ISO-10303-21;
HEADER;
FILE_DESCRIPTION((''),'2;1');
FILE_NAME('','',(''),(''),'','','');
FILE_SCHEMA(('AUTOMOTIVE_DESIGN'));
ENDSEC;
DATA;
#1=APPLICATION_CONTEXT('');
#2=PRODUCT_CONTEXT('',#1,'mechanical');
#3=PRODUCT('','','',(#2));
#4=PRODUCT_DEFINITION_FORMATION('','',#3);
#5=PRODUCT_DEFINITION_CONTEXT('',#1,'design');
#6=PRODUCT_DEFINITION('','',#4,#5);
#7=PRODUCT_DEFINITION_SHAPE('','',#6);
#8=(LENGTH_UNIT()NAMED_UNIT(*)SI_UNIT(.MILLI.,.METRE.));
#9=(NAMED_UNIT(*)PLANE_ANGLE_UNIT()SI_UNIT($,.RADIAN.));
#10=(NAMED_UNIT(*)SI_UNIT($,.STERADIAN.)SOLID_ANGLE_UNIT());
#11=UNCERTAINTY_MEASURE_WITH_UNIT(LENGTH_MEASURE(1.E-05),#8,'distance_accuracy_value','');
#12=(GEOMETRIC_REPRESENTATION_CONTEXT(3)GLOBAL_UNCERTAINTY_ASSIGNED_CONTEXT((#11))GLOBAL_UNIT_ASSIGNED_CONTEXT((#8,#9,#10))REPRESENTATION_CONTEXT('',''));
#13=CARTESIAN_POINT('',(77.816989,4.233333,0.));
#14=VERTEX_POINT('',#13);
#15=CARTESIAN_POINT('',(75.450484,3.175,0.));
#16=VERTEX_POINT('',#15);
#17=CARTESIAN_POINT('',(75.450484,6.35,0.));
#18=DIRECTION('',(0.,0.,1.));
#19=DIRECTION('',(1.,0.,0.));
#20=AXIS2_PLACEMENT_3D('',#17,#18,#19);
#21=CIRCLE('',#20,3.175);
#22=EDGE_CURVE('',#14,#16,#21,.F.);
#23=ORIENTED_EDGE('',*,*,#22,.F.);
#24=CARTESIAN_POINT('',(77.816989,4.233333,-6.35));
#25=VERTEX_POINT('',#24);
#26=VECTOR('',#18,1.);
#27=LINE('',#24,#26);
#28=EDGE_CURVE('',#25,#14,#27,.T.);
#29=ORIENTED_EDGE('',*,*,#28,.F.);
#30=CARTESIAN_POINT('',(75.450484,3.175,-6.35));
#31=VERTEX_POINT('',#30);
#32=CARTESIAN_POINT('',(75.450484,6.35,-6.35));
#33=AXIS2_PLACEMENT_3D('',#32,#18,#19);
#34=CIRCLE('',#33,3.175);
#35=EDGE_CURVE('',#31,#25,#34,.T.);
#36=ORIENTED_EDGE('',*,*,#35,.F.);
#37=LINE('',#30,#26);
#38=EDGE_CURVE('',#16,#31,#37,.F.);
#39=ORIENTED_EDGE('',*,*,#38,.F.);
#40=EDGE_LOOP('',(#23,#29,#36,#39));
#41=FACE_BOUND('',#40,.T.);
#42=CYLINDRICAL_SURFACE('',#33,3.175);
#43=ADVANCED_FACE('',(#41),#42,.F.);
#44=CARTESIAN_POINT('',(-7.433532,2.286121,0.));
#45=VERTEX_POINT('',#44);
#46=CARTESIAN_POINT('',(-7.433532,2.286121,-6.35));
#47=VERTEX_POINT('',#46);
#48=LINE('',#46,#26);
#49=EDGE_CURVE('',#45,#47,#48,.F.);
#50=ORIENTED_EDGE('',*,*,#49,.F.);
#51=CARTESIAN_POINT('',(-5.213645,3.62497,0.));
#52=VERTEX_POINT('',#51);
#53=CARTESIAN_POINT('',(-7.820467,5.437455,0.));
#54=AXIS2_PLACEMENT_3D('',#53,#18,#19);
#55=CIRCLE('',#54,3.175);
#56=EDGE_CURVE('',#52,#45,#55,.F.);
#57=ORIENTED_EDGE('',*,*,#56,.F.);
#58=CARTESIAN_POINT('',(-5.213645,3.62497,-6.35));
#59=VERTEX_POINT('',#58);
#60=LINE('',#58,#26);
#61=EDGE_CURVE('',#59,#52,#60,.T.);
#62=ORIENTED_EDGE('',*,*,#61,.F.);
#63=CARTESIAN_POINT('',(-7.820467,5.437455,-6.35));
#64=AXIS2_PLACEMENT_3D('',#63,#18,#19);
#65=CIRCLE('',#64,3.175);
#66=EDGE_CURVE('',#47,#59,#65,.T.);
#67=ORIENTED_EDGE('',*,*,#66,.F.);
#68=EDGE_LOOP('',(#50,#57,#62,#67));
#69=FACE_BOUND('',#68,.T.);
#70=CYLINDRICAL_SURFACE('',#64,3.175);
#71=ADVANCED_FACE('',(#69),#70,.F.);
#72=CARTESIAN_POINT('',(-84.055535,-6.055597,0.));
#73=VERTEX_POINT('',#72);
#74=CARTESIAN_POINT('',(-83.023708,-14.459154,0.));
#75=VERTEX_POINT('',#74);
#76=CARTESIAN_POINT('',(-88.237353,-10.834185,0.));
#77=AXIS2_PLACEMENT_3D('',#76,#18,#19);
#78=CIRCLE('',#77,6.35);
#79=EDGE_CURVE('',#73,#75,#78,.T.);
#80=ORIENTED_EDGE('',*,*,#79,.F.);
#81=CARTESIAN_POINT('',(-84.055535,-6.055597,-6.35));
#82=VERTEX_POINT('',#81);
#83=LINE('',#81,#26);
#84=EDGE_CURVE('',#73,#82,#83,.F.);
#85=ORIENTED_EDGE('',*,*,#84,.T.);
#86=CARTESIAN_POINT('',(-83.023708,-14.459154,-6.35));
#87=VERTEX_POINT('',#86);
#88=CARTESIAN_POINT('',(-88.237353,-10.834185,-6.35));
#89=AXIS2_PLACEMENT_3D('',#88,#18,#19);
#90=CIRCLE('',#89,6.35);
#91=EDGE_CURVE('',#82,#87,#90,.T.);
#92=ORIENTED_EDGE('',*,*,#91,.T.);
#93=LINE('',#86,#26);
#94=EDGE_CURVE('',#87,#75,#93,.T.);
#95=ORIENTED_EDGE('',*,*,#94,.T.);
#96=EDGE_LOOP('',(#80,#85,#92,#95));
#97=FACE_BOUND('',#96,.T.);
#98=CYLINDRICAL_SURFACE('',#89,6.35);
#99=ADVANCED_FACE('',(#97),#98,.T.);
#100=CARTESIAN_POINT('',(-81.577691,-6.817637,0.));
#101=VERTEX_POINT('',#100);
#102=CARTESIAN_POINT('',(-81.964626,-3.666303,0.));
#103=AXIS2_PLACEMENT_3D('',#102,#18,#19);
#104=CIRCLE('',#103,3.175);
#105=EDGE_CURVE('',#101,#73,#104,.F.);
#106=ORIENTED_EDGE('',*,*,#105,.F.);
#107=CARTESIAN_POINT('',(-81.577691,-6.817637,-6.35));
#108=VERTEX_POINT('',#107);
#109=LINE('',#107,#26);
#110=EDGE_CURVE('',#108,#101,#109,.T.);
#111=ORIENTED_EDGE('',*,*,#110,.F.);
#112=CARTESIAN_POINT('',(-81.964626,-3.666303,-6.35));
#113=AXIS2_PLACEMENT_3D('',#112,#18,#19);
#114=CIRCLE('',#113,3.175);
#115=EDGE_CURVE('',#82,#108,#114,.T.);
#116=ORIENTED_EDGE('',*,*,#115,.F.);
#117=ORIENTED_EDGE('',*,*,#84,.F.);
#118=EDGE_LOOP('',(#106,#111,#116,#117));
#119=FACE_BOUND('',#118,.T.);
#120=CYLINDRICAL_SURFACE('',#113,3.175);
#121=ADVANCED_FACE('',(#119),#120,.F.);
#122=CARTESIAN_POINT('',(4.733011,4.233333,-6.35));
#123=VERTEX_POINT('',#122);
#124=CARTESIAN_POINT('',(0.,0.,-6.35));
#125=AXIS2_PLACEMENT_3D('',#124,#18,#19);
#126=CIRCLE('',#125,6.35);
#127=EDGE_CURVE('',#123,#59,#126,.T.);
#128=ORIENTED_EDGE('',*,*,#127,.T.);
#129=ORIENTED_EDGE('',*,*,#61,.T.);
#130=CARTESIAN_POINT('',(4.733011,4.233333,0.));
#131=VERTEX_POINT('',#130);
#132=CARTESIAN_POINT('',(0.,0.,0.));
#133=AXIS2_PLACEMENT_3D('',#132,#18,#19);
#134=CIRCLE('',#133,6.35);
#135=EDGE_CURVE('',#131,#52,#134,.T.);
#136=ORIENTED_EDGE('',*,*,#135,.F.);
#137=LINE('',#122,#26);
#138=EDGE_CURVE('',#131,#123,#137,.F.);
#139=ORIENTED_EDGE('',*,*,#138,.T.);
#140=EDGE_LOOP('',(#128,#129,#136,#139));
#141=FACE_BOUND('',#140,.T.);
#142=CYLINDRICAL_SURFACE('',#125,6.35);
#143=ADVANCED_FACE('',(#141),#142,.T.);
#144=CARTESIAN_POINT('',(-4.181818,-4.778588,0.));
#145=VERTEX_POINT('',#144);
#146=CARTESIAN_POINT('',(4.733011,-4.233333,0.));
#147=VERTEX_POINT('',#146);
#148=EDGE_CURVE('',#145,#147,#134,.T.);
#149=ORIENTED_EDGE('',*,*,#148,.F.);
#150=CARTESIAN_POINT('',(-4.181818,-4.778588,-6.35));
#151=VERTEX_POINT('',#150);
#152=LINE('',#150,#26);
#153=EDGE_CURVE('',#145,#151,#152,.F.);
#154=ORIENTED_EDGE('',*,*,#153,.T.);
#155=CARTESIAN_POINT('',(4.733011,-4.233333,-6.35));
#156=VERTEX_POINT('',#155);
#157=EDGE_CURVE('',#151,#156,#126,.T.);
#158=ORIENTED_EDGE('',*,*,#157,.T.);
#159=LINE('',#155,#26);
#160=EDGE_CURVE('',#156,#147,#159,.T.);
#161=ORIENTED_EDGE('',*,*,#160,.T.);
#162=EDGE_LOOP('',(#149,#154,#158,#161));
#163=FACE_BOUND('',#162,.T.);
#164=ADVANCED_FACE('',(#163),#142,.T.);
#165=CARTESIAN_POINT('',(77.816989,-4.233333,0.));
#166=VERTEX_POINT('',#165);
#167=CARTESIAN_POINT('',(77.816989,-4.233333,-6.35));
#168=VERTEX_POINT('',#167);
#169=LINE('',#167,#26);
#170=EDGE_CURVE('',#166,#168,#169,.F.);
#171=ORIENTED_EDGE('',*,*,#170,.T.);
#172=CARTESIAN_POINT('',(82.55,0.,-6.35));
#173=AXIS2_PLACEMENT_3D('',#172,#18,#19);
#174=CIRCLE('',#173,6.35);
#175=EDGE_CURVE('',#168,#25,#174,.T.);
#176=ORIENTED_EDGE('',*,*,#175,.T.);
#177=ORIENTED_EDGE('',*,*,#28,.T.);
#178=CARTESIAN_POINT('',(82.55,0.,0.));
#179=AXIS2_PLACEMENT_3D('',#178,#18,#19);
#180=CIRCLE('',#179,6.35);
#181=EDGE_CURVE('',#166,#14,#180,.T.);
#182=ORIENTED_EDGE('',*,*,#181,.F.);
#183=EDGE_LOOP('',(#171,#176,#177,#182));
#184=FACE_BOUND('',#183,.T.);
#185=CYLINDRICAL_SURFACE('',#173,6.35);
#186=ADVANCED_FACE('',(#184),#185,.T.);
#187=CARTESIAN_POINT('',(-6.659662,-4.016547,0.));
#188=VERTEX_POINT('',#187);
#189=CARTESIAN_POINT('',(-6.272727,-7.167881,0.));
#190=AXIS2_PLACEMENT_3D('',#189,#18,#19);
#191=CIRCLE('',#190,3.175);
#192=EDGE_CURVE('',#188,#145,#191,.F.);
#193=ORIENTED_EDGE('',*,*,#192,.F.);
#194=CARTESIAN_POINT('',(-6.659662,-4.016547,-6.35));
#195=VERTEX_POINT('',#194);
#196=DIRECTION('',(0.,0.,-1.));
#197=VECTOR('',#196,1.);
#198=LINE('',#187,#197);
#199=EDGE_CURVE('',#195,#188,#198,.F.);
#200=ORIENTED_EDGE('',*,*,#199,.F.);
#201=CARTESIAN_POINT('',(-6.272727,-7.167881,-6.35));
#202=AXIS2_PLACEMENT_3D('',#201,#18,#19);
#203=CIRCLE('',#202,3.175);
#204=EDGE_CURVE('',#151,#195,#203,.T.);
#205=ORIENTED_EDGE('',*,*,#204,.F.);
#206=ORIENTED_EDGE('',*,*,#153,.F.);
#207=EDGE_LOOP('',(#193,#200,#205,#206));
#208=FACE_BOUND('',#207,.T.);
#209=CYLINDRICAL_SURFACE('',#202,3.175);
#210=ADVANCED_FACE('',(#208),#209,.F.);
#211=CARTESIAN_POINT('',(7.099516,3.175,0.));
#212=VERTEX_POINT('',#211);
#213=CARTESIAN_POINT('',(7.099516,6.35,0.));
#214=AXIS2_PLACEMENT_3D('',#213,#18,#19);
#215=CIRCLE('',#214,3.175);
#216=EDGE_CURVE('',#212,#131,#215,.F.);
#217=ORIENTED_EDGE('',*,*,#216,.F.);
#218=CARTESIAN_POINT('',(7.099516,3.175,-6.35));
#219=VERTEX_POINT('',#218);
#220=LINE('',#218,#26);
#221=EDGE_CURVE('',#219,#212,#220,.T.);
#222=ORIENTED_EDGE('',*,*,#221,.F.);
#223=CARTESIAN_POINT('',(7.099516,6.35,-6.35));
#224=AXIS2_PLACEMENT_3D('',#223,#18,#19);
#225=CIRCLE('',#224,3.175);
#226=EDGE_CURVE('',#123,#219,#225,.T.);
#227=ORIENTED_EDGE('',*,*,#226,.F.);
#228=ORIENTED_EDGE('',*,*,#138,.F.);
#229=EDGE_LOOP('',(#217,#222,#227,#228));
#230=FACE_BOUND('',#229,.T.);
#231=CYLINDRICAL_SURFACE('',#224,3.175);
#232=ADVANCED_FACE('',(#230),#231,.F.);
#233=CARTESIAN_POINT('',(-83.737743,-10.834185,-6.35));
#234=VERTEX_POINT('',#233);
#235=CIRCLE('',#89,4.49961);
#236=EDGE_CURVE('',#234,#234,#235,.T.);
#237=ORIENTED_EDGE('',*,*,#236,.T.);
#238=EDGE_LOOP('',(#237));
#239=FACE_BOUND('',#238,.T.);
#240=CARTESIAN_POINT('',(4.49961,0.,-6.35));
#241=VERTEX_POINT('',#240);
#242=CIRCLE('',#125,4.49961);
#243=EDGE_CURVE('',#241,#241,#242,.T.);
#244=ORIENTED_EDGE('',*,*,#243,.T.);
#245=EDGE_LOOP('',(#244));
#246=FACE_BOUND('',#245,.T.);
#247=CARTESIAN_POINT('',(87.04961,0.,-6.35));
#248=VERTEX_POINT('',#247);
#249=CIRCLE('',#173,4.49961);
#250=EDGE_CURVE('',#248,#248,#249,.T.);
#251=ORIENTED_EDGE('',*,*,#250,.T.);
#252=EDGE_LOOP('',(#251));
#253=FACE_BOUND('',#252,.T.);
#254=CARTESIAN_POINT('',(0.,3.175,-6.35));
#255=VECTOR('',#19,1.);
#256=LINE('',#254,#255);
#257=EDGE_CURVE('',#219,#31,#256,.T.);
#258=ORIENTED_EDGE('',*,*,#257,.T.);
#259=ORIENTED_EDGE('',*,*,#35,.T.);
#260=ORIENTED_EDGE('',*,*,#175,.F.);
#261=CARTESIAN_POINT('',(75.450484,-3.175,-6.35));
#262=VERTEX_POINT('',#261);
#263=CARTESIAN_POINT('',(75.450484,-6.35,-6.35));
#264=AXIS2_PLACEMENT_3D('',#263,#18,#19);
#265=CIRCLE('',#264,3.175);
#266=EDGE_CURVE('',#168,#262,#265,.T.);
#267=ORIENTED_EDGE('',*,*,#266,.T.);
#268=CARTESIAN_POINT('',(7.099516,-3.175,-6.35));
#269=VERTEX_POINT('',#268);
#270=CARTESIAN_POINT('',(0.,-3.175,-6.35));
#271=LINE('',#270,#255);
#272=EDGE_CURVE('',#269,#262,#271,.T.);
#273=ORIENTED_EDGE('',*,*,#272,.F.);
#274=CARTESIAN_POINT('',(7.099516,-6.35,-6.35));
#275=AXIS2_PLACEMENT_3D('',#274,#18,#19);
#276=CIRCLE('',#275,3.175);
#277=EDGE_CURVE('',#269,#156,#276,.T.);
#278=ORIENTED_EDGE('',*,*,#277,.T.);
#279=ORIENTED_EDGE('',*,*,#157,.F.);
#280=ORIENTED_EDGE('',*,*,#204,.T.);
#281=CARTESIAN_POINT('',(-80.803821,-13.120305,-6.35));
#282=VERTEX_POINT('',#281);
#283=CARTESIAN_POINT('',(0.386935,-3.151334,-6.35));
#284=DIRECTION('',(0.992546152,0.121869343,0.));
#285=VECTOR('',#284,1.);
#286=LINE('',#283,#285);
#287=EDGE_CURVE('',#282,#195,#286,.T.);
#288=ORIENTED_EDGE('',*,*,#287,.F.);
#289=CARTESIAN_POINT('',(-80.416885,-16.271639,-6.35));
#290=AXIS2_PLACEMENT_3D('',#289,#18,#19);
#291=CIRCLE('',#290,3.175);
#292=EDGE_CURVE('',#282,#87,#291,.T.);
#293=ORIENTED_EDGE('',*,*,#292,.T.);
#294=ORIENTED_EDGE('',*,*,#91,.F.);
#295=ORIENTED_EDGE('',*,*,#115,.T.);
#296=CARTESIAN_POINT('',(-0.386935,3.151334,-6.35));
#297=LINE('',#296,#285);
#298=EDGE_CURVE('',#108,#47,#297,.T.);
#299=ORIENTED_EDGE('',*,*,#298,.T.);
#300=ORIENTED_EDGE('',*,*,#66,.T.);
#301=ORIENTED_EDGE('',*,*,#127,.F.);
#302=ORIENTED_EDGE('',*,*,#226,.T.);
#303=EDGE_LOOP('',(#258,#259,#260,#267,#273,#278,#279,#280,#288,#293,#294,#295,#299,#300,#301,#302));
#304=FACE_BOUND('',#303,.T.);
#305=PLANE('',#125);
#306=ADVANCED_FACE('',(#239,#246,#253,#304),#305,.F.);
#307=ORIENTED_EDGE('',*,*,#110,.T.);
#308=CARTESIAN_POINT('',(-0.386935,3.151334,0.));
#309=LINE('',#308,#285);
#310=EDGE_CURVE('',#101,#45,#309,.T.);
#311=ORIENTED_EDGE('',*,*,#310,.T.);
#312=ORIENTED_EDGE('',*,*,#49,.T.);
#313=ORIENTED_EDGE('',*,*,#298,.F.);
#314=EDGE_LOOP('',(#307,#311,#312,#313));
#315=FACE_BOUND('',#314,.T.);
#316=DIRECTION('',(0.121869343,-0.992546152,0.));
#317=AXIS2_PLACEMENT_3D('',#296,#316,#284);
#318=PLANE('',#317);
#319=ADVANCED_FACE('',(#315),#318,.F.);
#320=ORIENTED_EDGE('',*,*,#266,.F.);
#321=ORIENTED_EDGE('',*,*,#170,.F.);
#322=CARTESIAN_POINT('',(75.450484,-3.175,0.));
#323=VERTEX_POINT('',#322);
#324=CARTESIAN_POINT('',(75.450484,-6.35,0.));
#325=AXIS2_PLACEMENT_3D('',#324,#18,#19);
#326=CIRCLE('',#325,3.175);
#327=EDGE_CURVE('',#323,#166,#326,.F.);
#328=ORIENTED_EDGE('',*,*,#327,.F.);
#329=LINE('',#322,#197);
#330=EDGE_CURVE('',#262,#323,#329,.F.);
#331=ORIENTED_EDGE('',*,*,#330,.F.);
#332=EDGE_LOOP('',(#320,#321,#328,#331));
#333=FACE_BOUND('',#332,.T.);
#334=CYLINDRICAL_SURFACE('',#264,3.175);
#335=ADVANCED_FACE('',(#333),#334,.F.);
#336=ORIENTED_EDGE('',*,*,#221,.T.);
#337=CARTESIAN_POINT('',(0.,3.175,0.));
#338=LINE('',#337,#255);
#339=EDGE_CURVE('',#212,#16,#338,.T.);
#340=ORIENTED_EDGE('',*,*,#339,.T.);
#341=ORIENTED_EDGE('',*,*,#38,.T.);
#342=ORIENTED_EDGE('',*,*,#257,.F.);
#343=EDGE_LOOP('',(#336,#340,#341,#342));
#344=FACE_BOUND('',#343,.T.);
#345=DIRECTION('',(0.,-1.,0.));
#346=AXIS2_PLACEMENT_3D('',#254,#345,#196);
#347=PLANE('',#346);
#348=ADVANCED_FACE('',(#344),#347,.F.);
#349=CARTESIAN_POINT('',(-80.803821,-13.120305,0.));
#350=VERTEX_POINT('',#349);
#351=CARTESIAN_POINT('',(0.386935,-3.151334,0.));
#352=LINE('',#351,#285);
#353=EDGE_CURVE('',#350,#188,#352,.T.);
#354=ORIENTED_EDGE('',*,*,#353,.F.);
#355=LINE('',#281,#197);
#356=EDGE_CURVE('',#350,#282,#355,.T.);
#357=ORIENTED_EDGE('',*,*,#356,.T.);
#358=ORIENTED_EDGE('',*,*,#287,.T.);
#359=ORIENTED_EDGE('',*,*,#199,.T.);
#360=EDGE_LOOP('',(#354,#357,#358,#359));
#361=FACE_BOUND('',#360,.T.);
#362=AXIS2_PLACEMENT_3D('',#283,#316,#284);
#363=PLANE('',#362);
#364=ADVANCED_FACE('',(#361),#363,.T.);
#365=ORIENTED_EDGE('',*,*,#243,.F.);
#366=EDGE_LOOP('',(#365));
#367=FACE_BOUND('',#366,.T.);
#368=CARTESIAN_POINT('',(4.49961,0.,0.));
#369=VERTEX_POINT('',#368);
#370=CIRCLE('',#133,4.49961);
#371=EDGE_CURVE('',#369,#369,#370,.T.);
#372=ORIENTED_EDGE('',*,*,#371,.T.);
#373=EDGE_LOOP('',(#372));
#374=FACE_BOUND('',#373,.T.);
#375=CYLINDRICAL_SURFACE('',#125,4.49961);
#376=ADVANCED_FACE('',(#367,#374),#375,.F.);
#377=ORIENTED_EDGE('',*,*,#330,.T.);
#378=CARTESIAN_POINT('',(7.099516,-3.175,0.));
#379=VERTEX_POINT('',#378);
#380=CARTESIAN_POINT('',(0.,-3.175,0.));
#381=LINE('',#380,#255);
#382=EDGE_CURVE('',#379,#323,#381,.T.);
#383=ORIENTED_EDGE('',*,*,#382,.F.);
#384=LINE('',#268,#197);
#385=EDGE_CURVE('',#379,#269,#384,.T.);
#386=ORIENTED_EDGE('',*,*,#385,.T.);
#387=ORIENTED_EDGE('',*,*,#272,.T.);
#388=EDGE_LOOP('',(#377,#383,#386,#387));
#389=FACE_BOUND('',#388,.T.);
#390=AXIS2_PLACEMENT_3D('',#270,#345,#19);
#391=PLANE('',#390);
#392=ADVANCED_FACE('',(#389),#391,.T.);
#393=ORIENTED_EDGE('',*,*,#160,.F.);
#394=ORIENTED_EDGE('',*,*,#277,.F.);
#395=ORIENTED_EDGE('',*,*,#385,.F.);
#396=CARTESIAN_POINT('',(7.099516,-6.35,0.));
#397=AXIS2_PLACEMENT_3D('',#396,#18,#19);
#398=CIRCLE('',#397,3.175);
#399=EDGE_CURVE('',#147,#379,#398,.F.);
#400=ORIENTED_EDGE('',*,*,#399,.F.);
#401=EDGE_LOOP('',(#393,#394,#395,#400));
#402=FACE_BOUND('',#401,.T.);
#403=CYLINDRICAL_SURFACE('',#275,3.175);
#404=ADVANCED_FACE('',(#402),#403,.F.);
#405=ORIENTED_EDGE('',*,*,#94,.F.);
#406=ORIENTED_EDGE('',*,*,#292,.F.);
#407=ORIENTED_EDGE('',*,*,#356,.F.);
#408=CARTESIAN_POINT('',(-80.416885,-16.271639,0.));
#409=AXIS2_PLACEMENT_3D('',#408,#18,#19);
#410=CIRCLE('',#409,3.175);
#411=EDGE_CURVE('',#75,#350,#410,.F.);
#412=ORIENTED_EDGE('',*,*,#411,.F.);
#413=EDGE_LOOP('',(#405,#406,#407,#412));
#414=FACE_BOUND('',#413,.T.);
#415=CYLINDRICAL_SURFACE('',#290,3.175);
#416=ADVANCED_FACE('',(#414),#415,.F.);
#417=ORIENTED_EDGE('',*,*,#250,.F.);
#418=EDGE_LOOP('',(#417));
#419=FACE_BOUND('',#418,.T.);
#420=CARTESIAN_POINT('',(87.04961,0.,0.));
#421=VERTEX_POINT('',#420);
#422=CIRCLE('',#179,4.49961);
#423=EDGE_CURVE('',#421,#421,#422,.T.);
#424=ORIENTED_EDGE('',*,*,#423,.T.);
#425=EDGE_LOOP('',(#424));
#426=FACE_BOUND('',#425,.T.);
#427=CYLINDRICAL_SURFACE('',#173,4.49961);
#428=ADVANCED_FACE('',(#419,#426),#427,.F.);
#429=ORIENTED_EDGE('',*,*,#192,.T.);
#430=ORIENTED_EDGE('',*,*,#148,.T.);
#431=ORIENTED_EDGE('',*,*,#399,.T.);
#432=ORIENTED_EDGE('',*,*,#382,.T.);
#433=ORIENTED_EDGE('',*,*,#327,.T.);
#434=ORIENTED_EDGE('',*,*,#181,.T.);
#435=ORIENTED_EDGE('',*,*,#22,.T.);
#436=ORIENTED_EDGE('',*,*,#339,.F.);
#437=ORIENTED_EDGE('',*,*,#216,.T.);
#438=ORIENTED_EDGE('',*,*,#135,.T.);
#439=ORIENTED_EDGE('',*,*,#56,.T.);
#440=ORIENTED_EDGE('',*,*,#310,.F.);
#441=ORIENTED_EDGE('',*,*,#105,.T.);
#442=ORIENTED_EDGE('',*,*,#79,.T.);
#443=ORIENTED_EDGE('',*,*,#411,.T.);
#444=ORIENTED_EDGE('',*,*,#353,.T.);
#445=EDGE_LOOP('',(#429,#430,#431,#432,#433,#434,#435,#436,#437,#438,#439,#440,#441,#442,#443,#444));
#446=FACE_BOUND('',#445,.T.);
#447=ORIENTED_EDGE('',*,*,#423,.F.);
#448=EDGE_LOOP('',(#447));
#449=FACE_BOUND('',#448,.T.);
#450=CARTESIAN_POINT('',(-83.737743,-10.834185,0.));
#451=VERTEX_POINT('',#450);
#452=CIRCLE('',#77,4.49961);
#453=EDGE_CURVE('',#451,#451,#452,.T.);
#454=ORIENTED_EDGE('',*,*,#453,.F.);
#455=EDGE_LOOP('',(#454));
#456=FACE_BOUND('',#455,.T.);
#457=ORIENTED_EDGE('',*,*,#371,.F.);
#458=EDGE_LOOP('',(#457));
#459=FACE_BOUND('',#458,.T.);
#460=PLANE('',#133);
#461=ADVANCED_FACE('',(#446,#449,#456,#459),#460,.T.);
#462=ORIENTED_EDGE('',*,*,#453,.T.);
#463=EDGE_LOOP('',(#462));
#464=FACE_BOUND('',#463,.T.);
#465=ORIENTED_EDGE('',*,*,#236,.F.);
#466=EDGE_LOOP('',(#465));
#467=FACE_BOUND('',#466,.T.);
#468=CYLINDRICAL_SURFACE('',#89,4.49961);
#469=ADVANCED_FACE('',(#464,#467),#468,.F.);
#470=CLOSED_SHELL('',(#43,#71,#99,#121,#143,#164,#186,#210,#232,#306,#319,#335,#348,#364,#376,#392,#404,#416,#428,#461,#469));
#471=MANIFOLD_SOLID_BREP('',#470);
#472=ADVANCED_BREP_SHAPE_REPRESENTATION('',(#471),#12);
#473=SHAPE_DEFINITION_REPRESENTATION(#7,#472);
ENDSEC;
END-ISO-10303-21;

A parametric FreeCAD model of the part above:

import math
import FreeCAD as App
import Part
import Sketcher

V = App.Vector
Q = App.Units.Quantity


def edges_at(feature, points):
    """Names of the edges that pass closest to the given points."""
    edges = feature.Shape.Edges
    near = lambda p: min(range(len(edges)), key=lambda i: edges[i].distToShape(Part.Vertex(*p))[0])
    return sorted({f"Edge{near(p) + 1}" for p in points})

doc = App.newDocument("Part")
body = doc.addObject("PartDesign::Body", "Body")

sketch1 = body.newObject("Sketcher::SketchObject", "Sketch")
sketch1.AttachmentSupport = (doc.getObject("XY_Plane"), [""])
sketch1.MapMode = "FlatFace"
sketch1.addGeometry([
    Part.LineSegment(V(77.050739, 3.175, 0), V(5.499261, 3.175, 0)),
    Part.ArcOfCircle(Part.Circle(V(0, 0, 0), V(0, 0, 1), 6.35), math.radians(30), math.radians(157)),
    Part.LineSegment(V(-5.845206, 2.481143, 0), V(-83.166017, -7.012659, 0)),
    Part.ArcOfCircle(Part.Circle(V(-88.237353, -10.834185, 0), V(0, 0, 1), 6.35), math.radians(37), math.radians(337)),
    Part.LineSegment(V(-82.392147, -13.315327, 0), V(-5.071335, -3.821525, 0)),
    Part.ArcOfCircle(Part.Circle(V(0, 0, 0), V(0, 0, 1), 6.35), math.radians(-143), math.radians(-30)),
    Part.LineSegment(V(5.499261, -3.175, 0), V(77.050739, -3.175, 0)),
    Part.ArcOfCircle(Part.Circle(V(82.55, 0, 0), V(0, 0, 1), 6.35), math.radians(-150), math.radians(150)),
    Part.Circle(V(-88.237353, -10.834185, 0), V(0, 0, 1), 4.49961),
    Part.Circle(V(0, 0, 0), V(0, 0, 1), 4.49961),
    Part.Circle(V(82.55, 0, 0), V(0, 0, 1), 4.49961),
], False)
sketch1.addConstraint([
    Sketcher.Constraint("Coincident", 0, 2, 1, 1),
    Sketcher.Constraint("Coincident", 1, 2, 2, 1),
    Sketcher.Constraint("Coincident", 2, 2, 3, 1),
    Sketcher.Constraint("Coincident", 3, 2, 4, 1),
    Sketcher.Constraint("Coincident", 4, 2, 5, 1),
    Sketcher.Constraint("Coincident", 5, 2, 6, 1),
    Sketcher.Constraint("Coincident", 6, 2, 7, 1),
    Sketcher.Constraint("Coincident", 7, 2, 0, 1),
    Sketcher.Constraint("Horizontal", 0),
    Sketcher.Constraint("Horizontal", 6),
    Sketcher.Constraint("Coincident", 1, 3, -1, 1),
    Sketcher.Constraint("Coincident", 5, 3, -1, 1),
    Sketcher.Constraint("Coincident", 9, 3, -1, 1),
    Sketcher.Constraint("Coincident", 8, 3, 3, 3),
    Sketcher.Constraint("Coincident", 10, 3, 7, 3),
    Sketcher.Constraint("Equal", 1, 3),
    Sketcher.Constraint("Equal", 3, 5),
    Sketcher.Constraint("Equal", 5, 7),
    Sketcher.Constraint("Equal", 8, 9),
    Sketcher.Constraint("Equal", 9, 10),
    Sketcher.Constraint("Symmetric", 6, 2, 7, 2, -1),
    Sketcher.Constraint("Parallel", 2, 4),
    Sketcher.Constraint("Equal", 2, 4),
    Sketcher.Constraint("Radius", 1, Q("0.25 in")),
    Sketcher.Constraint("Angle", 2, Q("-173 deg")),
    Sketcher.Constraint("Diameter", 8, Q("0.3543 in")),
    Sketcher.Constraint("DistanceX", -1, 1, 7, 3, Q("3.25 in")),
    Sketcher.Constraint("DistanceY", 5, 2, 0, 2, Q("0.25 in")),
    Sketcher.Constraint("DistanceY", 2, 2, 1, 2, Q("9.493802 mm")),
    Sketcher.Constraint("DistanceY", 2, 2, -1, 1, Q("7.012659 mm")),
    Sketcher.Constraint("DistanceX", 2, 2, 3, 2, Q("0.77387 mm")),
])
pad1 = body.newObject("PartDesign::Pad", "Pad")
pad1.Profile = sketch1
pad1.Length = Q("0.25 in")
pad1.Reversed = True
doc.recompute()

fillet = body.newObject("PartDesign::Fillet", "Fillet")
fillet.Base = (pad1, edges_at(pad1, [
    (-5.845, 2.481, -3.175),
    (5.499, 3.175, -3.175),
    (77.051, 3.175, -3.175),
    (77.051, -3.175, -3.175),
    (5.499, -3.175, -3.175),
    (-5.071, -3.822, -3.175),
    (-82.392, -13.315, -3.175),
    (-83.166, -7.013, -3.175),
]))
fillet.Radius = Q("0.125 in")

doc.recompute()
